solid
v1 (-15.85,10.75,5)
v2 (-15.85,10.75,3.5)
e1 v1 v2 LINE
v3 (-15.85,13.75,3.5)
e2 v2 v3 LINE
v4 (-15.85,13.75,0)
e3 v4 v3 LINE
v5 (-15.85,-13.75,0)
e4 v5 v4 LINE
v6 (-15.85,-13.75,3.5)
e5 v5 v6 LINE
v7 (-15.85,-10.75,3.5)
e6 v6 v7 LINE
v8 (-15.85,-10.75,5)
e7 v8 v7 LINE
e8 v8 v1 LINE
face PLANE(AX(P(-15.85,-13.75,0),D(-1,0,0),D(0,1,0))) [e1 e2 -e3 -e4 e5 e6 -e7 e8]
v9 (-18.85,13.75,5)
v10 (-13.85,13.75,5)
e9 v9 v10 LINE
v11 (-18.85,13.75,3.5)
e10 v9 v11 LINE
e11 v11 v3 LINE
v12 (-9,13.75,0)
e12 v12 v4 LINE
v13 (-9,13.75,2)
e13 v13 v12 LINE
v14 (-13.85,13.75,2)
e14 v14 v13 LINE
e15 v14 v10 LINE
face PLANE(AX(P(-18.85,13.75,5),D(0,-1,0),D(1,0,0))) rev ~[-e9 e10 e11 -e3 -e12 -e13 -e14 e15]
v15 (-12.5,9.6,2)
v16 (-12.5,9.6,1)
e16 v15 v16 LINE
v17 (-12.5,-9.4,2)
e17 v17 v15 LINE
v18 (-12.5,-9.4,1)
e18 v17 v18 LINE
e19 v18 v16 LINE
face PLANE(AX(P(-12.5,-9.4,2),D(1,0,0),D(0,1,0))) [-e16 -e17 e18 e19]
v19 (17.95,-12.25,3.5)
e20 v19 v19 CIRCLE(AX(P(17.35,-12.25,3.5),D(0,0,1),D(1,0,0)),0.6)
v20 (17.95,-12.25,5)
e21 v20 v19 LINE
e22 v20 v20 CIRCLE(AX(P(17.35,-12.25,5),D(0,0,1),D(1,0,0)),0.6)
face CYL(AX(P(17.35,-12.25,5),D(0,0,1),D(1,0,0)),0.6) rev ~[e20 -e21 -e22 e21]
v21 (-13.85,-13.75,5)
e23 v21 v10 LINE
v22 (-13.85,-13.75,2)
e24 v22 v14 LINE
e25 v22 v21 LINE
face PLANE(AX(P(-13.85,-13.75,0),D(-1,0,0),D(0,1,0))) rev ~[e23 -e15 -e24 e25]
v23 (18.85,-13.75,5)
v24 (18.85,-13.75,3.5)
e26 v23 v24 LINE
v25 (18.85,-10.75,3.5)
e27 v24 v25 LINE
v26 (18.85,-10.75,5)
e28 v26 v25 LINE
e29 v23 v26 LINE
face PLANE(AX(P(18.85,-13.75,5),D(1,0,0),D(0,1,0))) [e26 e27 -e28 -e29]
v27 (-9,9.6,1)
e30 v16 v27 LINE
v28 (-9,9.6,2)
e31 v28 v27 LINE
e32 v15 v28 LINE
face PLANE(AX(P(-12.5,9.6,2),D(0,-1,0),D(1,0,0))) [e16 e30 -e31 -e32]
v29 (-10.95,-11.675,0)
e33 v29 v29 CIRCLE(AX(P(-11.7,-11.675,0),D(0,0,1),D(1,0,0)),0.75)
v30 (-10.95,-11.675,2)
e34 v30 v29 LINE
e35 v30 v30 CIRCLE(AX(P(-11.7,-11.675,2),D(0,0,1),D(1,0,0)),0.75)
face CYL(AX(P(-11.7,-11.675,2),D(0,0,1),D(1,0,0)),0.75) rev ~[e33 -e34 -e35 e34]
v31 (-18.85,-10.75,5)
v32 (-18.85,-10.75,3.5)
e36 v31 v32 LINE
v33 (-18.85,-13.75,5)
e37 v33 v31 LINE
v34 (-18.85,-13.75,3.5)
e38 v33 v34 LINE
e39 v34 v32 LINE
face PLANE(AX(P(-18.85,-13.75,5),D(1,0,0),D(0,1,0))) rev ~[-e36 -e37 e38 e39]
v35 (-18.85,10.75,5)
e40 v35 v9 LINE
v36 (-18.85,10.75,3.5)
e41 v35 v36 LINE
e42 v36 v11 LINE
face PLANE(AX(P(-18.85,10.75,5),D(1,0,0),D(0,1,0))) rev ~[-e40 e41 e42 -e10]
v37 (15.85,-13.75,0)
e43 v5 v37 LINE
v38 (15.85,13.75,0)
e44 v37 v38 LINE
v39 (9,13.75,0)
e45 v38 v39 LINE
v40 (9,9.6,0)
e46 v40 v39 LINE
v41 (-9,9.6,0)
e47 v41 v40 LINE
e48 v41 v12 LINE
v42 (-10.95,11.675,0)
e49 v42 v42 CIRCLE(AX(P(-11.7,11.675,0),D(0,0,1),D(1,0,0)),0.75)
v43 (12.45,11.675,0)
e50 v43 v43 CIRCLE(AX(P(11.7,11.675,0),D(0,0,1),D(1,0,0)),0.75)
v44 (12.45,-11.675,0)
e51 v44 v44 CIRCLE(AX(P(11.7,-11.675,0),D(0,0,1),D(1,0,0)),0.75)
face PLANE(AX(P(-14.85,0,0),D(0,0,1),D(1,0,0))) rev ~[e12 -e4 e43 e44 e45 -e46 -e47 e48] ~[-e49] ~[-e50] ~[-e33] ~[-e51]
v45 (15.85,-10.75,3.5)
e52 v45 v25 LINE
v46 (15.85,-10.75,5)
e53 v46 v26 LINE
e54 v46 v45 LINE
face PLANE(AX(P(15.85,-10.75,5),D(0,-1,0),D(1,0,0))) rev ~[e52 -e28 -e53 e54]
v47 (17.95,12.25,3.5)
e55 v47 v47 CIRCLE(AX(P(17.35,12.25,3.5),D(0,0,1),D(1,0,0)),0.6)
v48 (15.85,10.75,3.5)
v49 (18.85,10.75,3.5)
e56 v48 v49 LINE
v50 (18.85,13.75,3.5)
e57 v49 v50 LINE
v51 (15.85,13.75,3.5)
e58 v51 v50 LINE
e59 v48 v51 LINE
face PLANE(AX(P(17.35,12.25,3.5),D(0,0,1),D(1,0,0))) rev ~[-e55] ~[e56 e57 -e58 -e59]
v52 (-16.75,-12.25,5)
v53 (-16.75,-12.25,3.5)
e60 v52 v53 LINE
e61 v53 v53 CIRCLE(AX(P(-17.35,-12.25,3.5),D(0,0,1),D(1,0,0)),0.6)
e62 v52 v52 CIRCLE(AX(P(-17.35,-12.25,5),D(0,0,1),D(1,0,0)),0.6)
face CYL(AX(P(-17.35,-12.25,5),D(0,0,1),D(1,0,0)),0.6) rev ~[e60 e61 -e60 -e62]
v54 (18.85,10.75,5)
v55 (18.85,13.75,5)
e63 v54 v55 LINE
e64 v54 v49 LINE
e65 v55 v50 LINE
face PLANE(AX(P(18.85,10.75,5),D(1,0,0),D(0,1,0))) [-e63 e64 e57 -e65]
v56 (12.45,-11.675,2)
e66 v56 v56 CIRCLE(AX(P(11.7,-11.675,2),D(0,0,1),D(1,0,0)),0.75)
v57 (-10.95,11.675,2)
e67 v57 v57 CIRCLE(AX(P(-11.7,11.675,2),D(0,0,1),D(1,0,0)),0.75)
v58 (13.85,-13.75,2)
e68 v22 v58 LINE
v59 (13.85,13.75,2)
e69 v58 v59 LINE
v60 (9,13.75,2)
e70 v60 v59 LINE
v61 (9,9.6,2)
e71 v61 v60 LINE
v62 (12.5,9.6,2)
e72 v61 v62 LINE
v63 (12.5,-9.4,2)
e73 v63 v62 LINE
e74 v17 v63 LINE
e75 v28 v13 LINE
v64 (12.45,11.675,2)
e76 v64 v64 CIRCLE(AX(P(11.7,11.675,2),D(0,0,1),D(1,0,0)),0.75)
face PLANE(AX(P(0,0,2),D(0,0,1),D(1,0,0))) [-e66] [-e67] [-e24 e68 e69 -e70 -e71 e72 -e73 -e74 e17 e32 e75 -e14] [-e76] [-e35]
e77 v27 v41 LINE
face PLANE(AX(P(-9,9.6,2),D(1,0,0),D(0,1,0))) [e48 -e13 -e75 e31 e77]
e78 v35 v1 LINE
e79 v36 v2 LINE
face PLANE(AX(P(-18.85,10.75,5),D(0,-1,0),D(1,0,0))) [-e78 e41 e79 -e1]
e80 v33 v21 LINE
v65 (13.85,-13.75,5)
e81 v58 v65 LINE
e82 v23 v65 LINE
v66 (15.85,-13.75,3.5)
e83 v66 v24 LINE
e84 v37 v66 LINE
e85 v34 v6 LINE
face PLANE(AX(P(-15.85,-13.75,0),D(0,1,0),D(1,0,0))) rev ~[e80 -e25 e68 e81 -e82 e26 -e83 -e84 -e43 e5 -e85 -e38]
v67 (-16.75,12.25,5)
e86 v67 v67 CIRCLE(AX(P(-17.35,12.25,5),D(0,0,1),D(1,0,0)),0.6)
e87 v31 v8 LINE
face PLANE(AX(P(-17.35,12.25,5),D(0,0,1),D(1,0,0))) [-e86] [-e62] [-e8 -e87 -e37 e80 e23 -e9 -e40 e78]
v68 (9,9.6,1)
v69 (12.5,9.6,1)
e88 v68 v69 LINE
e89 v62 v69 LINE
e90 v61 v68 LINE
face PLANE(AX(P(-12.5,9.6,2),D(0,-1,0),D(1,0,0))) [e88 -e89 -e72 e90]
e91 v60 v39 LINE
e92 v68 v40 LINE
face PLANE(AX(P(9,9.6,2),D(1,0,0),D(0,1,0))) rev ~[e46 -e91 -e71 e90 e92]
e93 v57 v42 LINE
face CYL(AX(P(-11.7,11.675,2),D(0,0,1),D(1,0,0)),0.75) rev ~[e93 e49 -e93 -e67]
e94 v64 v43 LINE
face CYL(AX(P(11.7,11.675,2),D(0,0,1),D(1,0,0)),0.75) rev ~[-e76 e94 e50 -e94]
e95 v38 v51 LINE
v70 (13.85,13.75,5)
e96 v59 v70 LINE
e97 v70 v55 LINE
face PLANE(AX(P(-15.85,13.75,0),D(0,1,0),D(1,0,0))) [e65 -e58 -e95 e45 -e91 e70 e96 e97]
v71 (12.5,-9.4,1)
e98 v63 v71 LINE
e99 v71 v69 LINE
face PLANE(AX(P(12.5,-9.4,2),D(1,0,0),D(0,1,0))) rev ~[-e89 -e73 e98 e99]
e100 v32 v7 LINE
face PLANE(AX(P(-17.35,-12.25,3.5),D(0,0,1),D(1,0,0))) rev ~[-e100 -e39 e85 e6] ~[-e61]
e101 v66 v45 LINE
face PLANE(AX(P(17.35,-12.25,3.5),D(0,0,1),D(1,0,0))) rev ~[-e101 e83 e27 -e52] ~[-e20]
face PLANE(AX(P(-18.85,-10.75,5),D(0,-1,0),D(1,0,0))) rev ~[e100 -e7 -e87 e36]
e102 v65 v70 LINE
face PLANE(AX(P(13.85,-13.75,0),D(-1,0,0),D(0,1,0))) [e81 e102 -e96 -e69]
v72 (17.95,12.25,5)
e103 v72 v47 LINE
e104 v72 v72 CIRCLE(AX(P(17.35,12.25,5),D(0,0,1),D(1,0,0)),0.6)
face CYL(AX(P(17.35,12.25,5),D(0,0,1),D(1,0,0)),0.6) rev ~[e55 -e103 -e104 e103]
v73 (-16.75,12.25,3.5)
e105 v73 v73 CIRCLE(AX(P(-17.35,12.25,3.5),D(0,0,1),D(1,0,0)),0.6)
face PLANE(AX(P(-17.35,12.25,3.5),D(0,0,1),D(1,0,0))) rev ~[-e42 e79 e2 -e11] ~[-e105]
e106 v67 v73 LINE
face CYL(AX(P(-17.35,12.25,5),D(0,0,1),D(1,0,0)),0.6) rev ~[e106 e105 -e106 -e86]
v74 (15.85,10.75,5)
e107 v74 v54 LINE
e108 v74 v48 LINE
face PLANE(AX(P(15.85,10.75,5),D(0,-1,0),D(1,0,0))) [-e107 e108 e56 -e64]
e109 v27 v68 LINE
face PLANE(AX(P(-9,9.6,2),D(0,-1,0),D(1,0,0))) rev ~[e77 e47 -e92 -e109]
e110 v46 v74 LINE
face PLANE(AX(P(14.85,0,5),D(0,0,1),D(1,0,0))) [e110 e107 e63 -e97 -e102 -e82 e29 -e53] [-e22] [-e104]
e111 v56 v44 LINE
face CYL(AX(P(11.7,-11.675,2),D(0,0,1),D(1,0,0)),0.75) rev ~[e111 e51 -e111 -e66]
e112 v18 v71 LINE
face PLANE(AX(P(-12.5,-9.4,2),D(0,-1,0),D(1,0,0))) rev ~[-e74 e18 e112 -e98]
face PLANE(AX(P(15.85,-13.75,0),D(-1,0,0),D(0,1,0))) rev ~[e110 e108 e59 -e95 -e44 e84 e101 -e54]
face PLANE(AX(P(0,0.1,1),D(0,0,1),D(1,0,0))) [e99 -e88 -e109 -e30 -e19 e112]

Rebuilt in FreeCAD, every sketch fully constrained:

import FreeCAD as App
import Part
import Sketcher
from FreeCAD import Vector
Q = App.Units.Quantity


def add_polygon(sketch, points):
    """Adds a closed chain of lines whose ends are joined by coincident constraints."""
    first, n = sketch.GeometryCount, len(points)
    for a, b in zip(points, points[1:] + points[:1]):
        sketch.addGeometry(Part.LineSegment(App.Vector(*a, 0), App.Vector(*b, 0)), False)
    for i in range(n):
        sketch.addConstraint(Sketcher.Constraint("Coincident", first + i, 2, first + (i + 1) % n, 1))

doc = App.newDocument("Part")
body = doc.addObject("PartDesign::Body", "Body")

sketch1 = body.newObject("Sketcher::SketchObject", "Sketch")
sketch1.AttachmentSupport = (doc.getObject("XY_Plane"), [""])
sketch1.MapMode = "FlatFace"
add_polygon(sketch1, [(-14, 14), (-14, -14), (14, -14), (14, 14)])
sketch1.addConstraint(Sketcher.Constraint("Vertical", 0))
sketch1.addConstraint(Sketcher.Constraint("Horizontal", 1))
sketch1.addConstraint(Sketcher.Constraint("Vertical", 2))
sketch1.addConstraint(Sketcher.Constraint("Horizontal", 3))
sketch1.addConstraint(Sketcher.Constraint("Symmetric", 0, 2, 2, 2, -1, 1))
sketch1.addConstraint(Sketcher.Constraint("DistanceX", 1, 1, 1, 2, Q("27.7 mm")))
sketch1.addConstraint(Sketcher.Constraint("DistanceY", 0, 2, 0, 1, Q("27.5 mm")))
pad1 = body.newObject("PartDesign::Pad", "Pad")
pad1.Profile = sketch1
pad1.Length = 2

sketch2 = body.newObject("Sketcher::SketchObject", "Sketch001")
sketch2.AttachmentSupport = (doc.getObject("XY_Plane"), [""])
sketch2.MapMode = "FlatFace"
add_polygon(sketch2, [(-15.8, 13.8), (-15.8, -13.8), (-13.8, -13.8), (-13.8, 13.8)])
add_polygon(sketch2, [(13.8, 13.8), (13.8, -13.8), (15.8, -13.8), (15.8, 13.8)])
sketch2.addConstraint(Sketcher.Constraint("Vertical", 0))
sketch2.addConstraint(Sketcher.Constraint("Horizontal", 1))
sketch2.addConstraint(Sketcher.Constraint("Vertical", 2))
sketch2.addConstraint(Sketcher.Constraint("Horizontal", 3))
sketch2.addConstraint(Sketcher.Constraint("Vertical", 4))
sketch2.addConstraint(Sketcher.Constraint("Horizontal", 5))
sketch2.addConstraint(Sketcher.Constraint("Vertical", 6))
sketch2.addConstraint(Sketcher.Constraint("Horizontal", 7))
sketch2.addConstraint(Sketcher.Constraint("Symmetric", 2, 2, 4, 2, -1, 1))
sketch2.addConstraint(Sketcher.Constraint("Symmetric", 0, 2, 6, 2, -1, 1))
sketch2.addConstraint(Sketcher.Constraint("Horizontal", 1, 2, 4, 2))
sketch2.addConstraint(Sketcher.Constraint("DistanceX", 1, 1, 1, 2, Q("2 mm")))
sketch2.addConstraint(Sketcher.Constraint("DistanceY", 0, 2, 0, 1, Q("27.5 mm")))
sketch2.addConstraint(Sketcher.Constraint("DistanceX", 1, 2, 4, 2, Q("27.7 mm")))
pad2 = body.newObject("PartDesign::Pad", "Pad001")
pad2.Profile = sketch2
pad2.Length = 5

sketch3 = body.newObject("Sketcher::SketchObject", "Sketch002")
sketch3.AttachmentSupport = (doc.getObject("XY_Plane"), [""])
sketch3.MapMode = "FlatFace"
sketch3.AttachmentOffset = App.Placement(Vector(0, 0, 2), App.Rotation())
sketch3.addGeometry(Part.Circle(Vector(-11.7, 11.7, 0), Vector(0, 0, 1), 0.8), False)
sketch3.addGeometry(Part.Circle(Vector(11.7, 11.7, 0), Vector(0, 0, 1), 0.8), False)
sketch3.addGeometry(Part.Circle(Vector(-11.7, -11.7, 0), Vector(0, 0, 1), 0.8), False)
sketch3.addGeometry(Part.Circle(Vector(11.7, -11.7, 0), Vector(0, 0, 1), 0.8), False)
add_polygon(sketch3, [(-9, 13.8), (-9, 9.6), (9, 9.6), (9, 13.8)])
sketch3.addConstraint(Sketcher.Constraint("Vertical", 4))
sketch3.addConstraint(Sketcher.Constraint("Horizontal", 5))
sketch3.addConstraint(Sketcher.Constraint("Vertical", 6))
sketch3.addConstraint(Sketcher.Constraint("Horizontal", 7))
sketch3.addConstraint(Sketcher.Constraint("Equal", 0, 1))
sketch3.addConstraint(Sketcher.Constraint("Equal", 1, 2))
sketch3.addConstraint(Sketcher.Constraint("Equal", 2, 3))
sketch3.addConstraint(Sketcher.Constraint("Symmetric", 1, 3, 2, 3, -1, 1))
sketch3.addConstraint(Sketcher.Constraint("Symmetric", 0, 3, 3, 3, -1, 1))
sketch3.addConstraint(Sketcher.Constraint("Symmetric", 0, 3, 1, 3, -2))
sketch3.addConstraint(Sketcher.Constraint("Diameter", 0, Q("1.5 mm")))
sketch3.addConstraint(Sketcher.Constraint("DistanceX", 5, 1, 5, 2, Q("18 mm")))
sketch3.addConstraint(Sketcher.Constraint("DistanceX", 4, 2, -1, 1, Q("9 mm")))
sketch3.addConstraint(Sketcher.Constraint("DistanceY", 4, 2, 4, 1, Q("4.15 mm")))
sketch3.addConstraint(Sketcher.Constraint("DistanceX", 0, 3, -1, 1, Q("11.7 mm")))
sketch3.addConstraint(Sketcher.Constraint("DistanceY", -1, 1, 4, 2, Q("9.6 mm")))
sketch3.addConstraint(Sketcher.Constraint("DistanceY", 2, 3, 0, 3, Q("23.35 mm")))
pocket1 = body.newObject("PartDesign::Pocket", "Pocket")
pocket1.Profile = sketch3
pocket1.Type = "ThroughAll"

sketch4 = body.newObject("Sketcher::SketchObject", "Sketch003")
sketch4.AttachmentSupport = (doc.getObject("XY_Plane"), [""])
sketch4.MapMode = "FlatFace"
sketch4.AttachmentOffset = App.Placement(Vector(0, 0, 2), App.Rotation())
add_polygon(sketch4, [(-12, 10), (-12, -9), (12, -9), (12, 10)])
sketch4.addConstraint(Sketcher.Constraint("Vertical", 0))
sketch4.addConstraint(Sketcher.Constraint("Horizontal", 1))
sketch4.addConstraint(Sketcher.Constraint("Vertical", 2))
sketch4.addConstraint(Sketcher.Constraint("Horizontal", 3))
sketch4.addConstraint(Sketcher.Constraint("DistanceX", 1, 1, 1, 2, Q("25 mm")))
sketch4.addConstraint(Sketcher.Constraint("DistanceY", 0, 2, 0, 1, Q("19 mm")))
sketch4.addConstraint(Sketcher.Constraint("DistanceX", 0, 2, -1, 1, Q("12.5 mm")))
sketch4.addConstraint(Sketcher.Constraint("DistanceY", 0, 2, -1, 1, Q("9.4 mm")))
pocket2 = body.newObject("PartDesign::Pocket", "Pocket001")
pocket2.Profile = sketch4
pocket2.Length = 1

sketch5 = body.newObject("Sketcher::SketchObject", "Sketch004")
sketch5.AttachmentSupport = (doc.getObject("XY_Plane"), [""])
sketch5.MapMode = "FlatFace"
sketch5.AttachmentOffset = App.Placement(Vector(0, 0, 5), App.Rotation())
add_polygon(sketch5, [(-18.9, 13.8), (-18.9, 10.8), (-15.8, 10.8), (-15.8, 13.8)])
sketch5.addGeometry(Part.Circle(Vector(-17.4, 12.2, 0), Vector(0, 0, 1), 0.6), False)
add_polygon(sketch5, [(-18.9, -10.8), (-18.9, -13.8), (-15.8, -13.8), (-15.8, -10.8)])
sketch5.addGeometry(Part.Circle(Vector(-17.4, -12.2, 0), Vector(0, 0, 1), 0.6), False)
add_polygon(sketch5, [(15.8, -10.8), (15.8, -13.8), (18.9, -13.8), (18.9, -10.8)])
sketch5.addGeometry(Part.Circle(Vector(17.4, -12.2, 0), Vector(0, 0, 1), 0.6), False)
add_polygon(sketch5, [(15.8, 13.8), (15.8, 10.8), (18.9, 10.8), (18.9, 13.8)])
sketch5.addGeometry(Part.Circle(Vector(17.4, 12.2, 0), Vector(0, 0, 1), 0.6), False)
sketch5.addConstraint(Sketcher.Constraint("Vertical", 0))
sketch5.addConstraint(Sketcher.Constraint("Horizontal", 1))
sketch5.addConstraint(Sketcher.Constraint("Vertical", 2))
sketch5.addConstraint(Sketcher.Constraint("Horizontal", 3))
sketch5.addConstraint(Sketcher.Constraint("Vertical", 5))
sketch5.addConstraint(Sketcher.Constraint("Horizontal", 6))
sketch5.addConstraint(Sketcher.Constraint("Vertical", 7))
sketch5.addConstraint(Sketcher.Constraint("Horizontal", 8))
sketch5.addConstraint(Sketcher.Constraint("Vertical", 10))
sketch5.addConstraint(Sketcher.Constraint("Horizontal", 11))
sketch5.addConstraint(Sketcher.Constraint("Vertical", 12))
sketch5.addConstraint(Sketcher.Constraint("Horizontal", 13))
sketch5.addConstraint(Sketcher.Constraint("Vertical", 15))
sketch5.addConstraint(Sketcher.Constraint("Horizontal", 16))
sketch5.addConstraint(Sketcher.Constraint("Vertical", 17))
sketch5.addConstraint(Sketcher.Constraint("Horizontal", 18))
sketch5.addConstraint(Sketcher.Constraint("Equal", 4, 9))
sketch5.addConstraint(Sketcher.Constraint("Equal", 9, 14))
sketch5.addConstraint(Sketcher.Constraint("Equal", 14, 19))
sketch5.addConstraint(Sketcher.Constraint("Symmetric", 4, 3, 14, 3, -1, 1))
sketch5.addConstraint(Sketcher.Constraint("Symmetric", 9, 3, 19, 3, -1, 1))
sketch5.addConstraint(Sketcher.Constraint("Symmetric", 2, 2, 10, 2, -1, 1))
sketch5.addConstraint(Sketcher.Constraint("Symmetric", 0, 2, 12, 2, -1, 1))
sketch5.addConstraint(Sketcher.Constraint("Symmetric", 7, 2, 15, 2, -1, 1))
sketch5.addConstraint(Sketcher.Constraint("Symmetric", 5, 2, 17, 2, -1, 1))
sketch5.addConstraint(Sketcher.Constraint("Symmetric", 9, 3, 14, 3, -2))
sketch5.addConstraint(Sketcher.Constraint("Symmetric", 6, 2, 10, 2, -2))
sketch5.addConstraint(Sketcher.Constraint("Symmetric", 8, 2, 12, 2, -2))
sketch5.addConstraint(Sketcher.Constraint("Equal", 18, 0))
sketch5.addConstraint(Sketcher.Constraint("Diameter", 4, Q("1.2 mm")))
sketch5.addConstraint(Sketcher.Constraint("DistanceX", 1, 1, 1, 2, Q("3 mm")))
sketch5.addConstraint(Sketcher.Constraint("DistanceY", 9, 3, 0, 2, Q("23 mm")))
sketch5.addConstraint(Sketcher.Constraint("DistanceY", 9, 3, 4, 3, Q("24.5 mm")))
sketch5.addConstraint(Sketcher.Constraint("DistanceX", 9, 3, 14, 3, Q("34.7 mm")))
sketch5.addConstraint(Sketcher.Constraint("DistanceX", 0, 2, 4, 3, Q("1.5 mm")))
pad3 = body.newObject("PartDesign::Pad", "Pad002")
pad3.Profile = sketch5
pad3.Length = 1.5
pad3.Reversed = True

doc.recompute()
